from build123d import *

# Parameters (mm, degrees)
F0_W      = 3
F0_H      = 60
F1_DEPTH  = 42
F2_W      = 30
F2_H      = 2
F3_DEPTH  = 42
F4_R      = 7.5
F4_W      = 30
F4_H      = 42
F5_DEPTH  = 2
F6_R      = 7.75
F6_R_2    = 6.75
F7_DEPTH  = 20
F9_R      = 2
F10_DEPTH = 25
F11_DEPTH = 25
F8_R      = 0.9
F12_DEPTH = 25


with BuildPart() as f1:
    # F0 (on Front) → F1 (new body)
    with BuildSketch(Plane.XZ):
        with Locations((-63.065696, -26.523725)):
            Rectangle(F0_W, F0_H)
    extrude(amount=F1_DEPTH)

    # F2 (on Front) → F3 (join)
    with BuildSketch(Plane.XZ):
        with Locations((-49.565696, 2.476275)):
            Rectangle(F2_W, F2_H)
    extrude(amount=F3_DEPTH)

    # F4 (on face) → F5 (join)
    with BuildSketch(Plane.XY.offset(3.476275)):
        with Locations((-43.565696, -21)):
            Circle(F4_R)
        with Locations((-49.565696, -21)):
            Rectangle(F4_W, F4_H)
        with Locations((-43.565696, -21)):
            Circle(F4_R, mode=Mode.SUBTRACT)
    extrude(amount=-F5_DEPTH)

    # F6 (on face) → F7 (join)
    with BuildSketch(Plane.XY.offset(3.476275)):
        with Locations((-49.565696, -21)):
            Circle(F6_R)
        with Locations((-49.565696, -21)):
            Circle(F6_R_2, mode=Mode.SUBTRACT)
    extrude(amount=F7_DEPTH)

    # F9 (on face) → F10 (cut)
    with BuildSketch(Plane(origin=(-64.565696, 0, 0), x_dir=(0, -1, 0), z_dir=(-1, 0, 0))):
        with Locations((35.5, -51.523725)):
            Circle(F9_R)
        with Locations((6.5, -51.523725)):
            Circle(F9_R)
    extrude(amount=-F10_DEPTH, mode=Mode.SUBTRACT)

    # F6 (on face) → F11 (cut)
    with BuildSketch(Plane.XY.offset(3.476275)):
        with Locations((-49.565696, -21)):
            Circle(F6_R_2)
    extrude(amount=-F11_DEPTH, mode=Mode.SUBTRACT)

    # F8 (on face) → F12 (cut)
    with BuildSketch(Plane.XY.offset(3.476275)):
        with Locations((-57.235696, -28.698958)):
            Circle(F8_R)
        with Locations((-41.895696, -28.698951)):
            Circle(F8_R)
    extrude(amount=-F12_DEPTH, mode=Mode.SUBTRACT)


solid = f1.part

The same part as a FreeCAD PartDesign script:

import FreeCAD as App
import Part
import Sketcher

V = App.Vector
Q = App.Units.Quantity


def add_polygon(sketch, points):
    """Adds a closed chain of lines whose ends are joined by coincident constraints."""
    first, n = sketch.GeometryCount, len(points)
    for a, b in zip(points, points[1:] + points[:1]):
        sketch.addGeometry(Part.LineSegment(App.Vector(*a, 0), App.Vector(*b, 0)), False)
    for i in range(n):
        sketch.addConstraint(Sketcher.Constraint("Coincident", first + i, 2, first + (i + 1) % n, 1))

doc = App.newDocument("Part")
body = doc.addObject("PartDesign::Body", "Body")

sketch1 = body.newObject("Sketcher::SketchObject", "Sketch")
sketch1.AttachmentSupport = (doc.getObject("XZ_Plane"), [""])
sketch1.MapMode = "FlatFace"
add_polygon(sketch1, [(-64.6, 3.5), (-64.6, -56.5), (-61.6, -56.5), (-61.6, 3.5)])
sketch1.addConstraint(Sketcher.Constraint("Vertical", 0))
sketch1.addConstraint(Sketcher.Constraint("Horizontal", 1))
sketch1.addConstraint(Sketcher.Constraint("Vertical", 2))
sketch1.addConstraint(Sketcher.Constraint("Horizontal", 3))
sketch1.addConstraint(Sketcher.Constraint("DistanceX", 1, 1, 1, 2, Q("3 mm")))
sketch1.addConstraint(Sketcher.Constraint("DistanceY", 0, 2, 0, 1, Q("60 mm")))
sketch1.addConstraint(Sketcher.Constraint("DistanceX", 0, 2, -1, 1, Q("64.565696 mm")))
sketch1.addConstraint(Sketcher.Constraint("DistanceY", 0, 2, -1, 1, Q("56.523725 mm")))
pad1 = body.newObject("PartDesign::Pad", "Pad")
pad1.Profile = sketch1
pad1.Length = 42

sketch2 = body.newObject("Sketcher::SketchObject", "Sketch001")
sketch2.AttachmentSupport = (doc.getObject("XZ_Plane"), [""])
sketch2.MapMode = "FlatFace"
add_polygon(sketch2, [(-64.6, 3.5), (-64.6, 1.5), (-34.6, 1.5), (-34.6, 3.5)])
sketch2.addConstraint(Sketcher.Constraint("Vertical", 0))
sketch2.addConstraint(Sketcher.Constraint("Horizontal", 1))
sketch2.addConstraint(Sketcher.Constraint("Vertical", 2))
sketch2.addConstraint(Sketcher.Constraint("Horizontal", 3))
sketch2.addConstraint(Sketcher.Constraint("DistanceX", 1, 1, 1, 2, Q("30 mm")))
sketch2.addConstraint(Sketcher.Constraint("DistanceY", 0, 2, 0, 1, Q("2 mm")))
sketch2.addConstraint(Sketcher.Constraint("DistanceX", 0, 2, -1, 1, Q("64.565696 mm")))
sketch2.addConstraint(Sketcher.Constraint("DistanceY", -1, 1, 0, 2, Q("1.476275 mm")))
pad2 = body.newObject("PartDesign::Pad", "Pad001")
pad2.Profile = sketch2
pad2.Length = 42

sketch3 = body.newObject("Sketcher::SketchObject", "Sketch002")
sketch3.AttachmentSupport = (doc.getObject("XY_Plane"), [""])
sketch3.MapMode = "FlatFace"
sketch3.AttachmentOffset = App.Placement(V(0, 0, 3.476275), App.Rotation())
add_polygon(sketch3, [(-65, 0), (-65, -42), (-35, -42), (-35, 0)])
sketch3.addGeometry(Part.Circle(V(-44, -21, 0), V(0, 0, 1), 8), False)
sketch3.addConstraint(Sketcher.Constraint("Vertical", 0))
sketch3.addConstraint(Sketcher.Constraint("Horizontal", 1))
sketch3.addConstraint(Sketcher.Constraint("Vertical", 2))
sketch3.addConstraint(Sketcher.Constraint("Horizontal", 3))
sketch3.addConstraint(Sketcher.Constraint("PointOnObject", 2, 2, -1))
sketch3.addConstraint(Sketcher.Constraint("Diameter", 4, Q("15 mm")))
sketch3.addConstraint(Sketcher.Constraint("DistanceX", 1, 1, 1, 2, Q("30 mm")))
sketch3.addConstraint(Sketcher.Constraint("DistanceY", 0, 2, 0, 1, Q("42 mm")))
sketch3.addConstraint(Sketcher.Constraint("DistanceY", 4, 3, -1, 1, Q("21 mm")))
sketch3.addConstraint(Sketcher.Constraint("DistanceX", 0, 2, 4, 3, Q("21 mm")))
sketch3.addConstraint(Sketcher.Constraint("DistanceX", 4, 3, -1, 1, Q("43.565696 mm")))
pad3 = body.newObject("PartDesign::Pad", "Pad002")
pad3.Profile = sketch3
pad3.Length = 2
pad3.Reversed = True

sketch4 = body.newObject("Sketcher::SketchObject", "Sketch003")
sketch4.AttachmentSupport = (doc.getObject("XY_Plane"), [""])
sketch4.MapMode = "FlatFace"
sketch4.AttachmentOffset = App.Placement(V(0, 0, 3.476275), App.Rotation())
sketch4.addGeometry(Part.Circle(V(-50, -21, 0), V(0, 0, 1), 8), False)
sketch4.addGeometry(Part.Circle(V(-50, -21, 0), V(0, 0, 1), 7), False)
sketch4.addConstraint(Sketcher.Constraint("Coincident", 1, 3, 0, 3))
sketch4.addConstraint(Sketcher.Constraint("Diameter", 0, Q("15.5 mm")))
sketch4.addConstraint(Sketcher.Constraint("Diameter", 1, Q("13.5 mm")))
sketch4.addConstraint(Sketcher.Constraint("DistanceY", 0, 3, -1, 1, Q("21 mm")))
sketch4.addConstraint(Sketcher.Constraint("DistanceX", 0, 3, -1, 1, Q("49.565696 mm")))
pad4 = body.newObject("PartDesign::Pad", "Pad003")
pad4.Profile = sketch4
pad4.Length = 20

sketch5 = body.newObject("Sketcher::SketchObject", "Sketch004")
sketch5.AttachmentSupport = (doc.getObject("YZ_Plane"), [""])
sketch5.MapMode = "FlatFace"
sketch5.AttachmentOffset = App.Placement(V(0, 0, -64.565696), App.Rotation())
sketch5.addGeometry(Part.Circle(V(-35.5, -51.5, 0), V(0, 0, 1), 2), False)
sketch5.addGeometry(Part.Circle(V(-6.5, -51.5, 0), V(0, 0, 1), 2), False)
sketch5.addConstraint(Sketcher.Constraint("Equal", 0, 1))
sketch5.addConstraint(Sketcher.Constraint("Horizontal", 0, 3, 1, 3))
sketch5.addConstraint(Sketcher.Constraint("Diameter", 0, Q("4 mm")))
sketch5.addConstraint(Sketcher.Constraint("DistanceX", 0, 3, 1, 3, Q("29 mm")))
sketch5.addConstraint(Sketcher.Constraint("DistanceX", 0, 3, -1, 1, Q("35.5 mm")))
sketch5.addConstraint(Sketcher.Constraint("DistanceY", 0, 3, -1, 1, Q("51.523725 mm")))
pocket1 = body.newObject("PartDesign::Pocket", "Pocket")
pocket1.Profile = sketch5
pocket1.Length = 25
pocket1.Reversed = True

sketch6 = body.newObject("Sketcher::SketchObject", "Sketch005")
sketch6.AttachmentSupport = (doc.getObject("XY_Plane"), [""])
sketch6.MapMode = "FlatFace"
sketch6.AttachmentOffset = App.Placement(V(0, 0, 3.476275), App.Rotation())
sketch6.addGeometry(Part.Circle(V(-50, -21, 0), V(0, 0, 1), 7), False)
sketch6.addConstraint(Sketcher.Constraint("Diameter", 0, Q("13.5 mm")))
sketch6.addConstraint(Sketcher.Constraint("DistanceY", 0, 3, -1, 1, Q("21 mm")))
sketch6.addConstraint(Sketcher.Constraint("DistanceX", 0, 3, -1, 1, Q("49.565696 mm")))
pocket2 = body.newObject("PartDesign::Pocket", "Pocket001")
pocket2.Profile = sketch6
pocket2.Length = 25

sketch7 = body.newObject("Sketcher::SketchObject", "Sketch006")
sketch7.AttachmentSupport = (doc.getObject("XY_Plane"), [""])
sketch7.MapMode = "FlatFace"
sketch7.AttachmentOffset = App.Placement(V(0, 0, 3.476275), App.Rotation())
sketch7.addGeometry(Part.Circle(V(-57.2, -28.7, 0), V(0, 0, 1), 0.9), False)
sketch7.addGeometry(Part.Circle(V(-41.9, -28.7, 0), V(0, 0, 1), 0.9), False)
sketch7.addConstraint(Sketcher.Constraint("Equal", 0, 1))
sketch7.addConstraint(Sketcher.Constraint("Diameter", 0, Q("1.8 mm")))
sketch7.addConstraint(Sketcher.Constraint("DistanceX", 0, 3, 1, 3, Q("15.34 mm")))
sketch7.addConstraint(Sketcher.Constraint("DistanceY", 0, 3, -1, 1, Q("28.698958 mm")))
sketch7.addConstraint(Sketcher.Constraint("DistanceY", 1, 3, -1, 1, Q("28.698951 mm")))
sketch7.addConstraint(Sketcher.Constraint("DistanceX", 0, 3, -1, 1, Q("57.235696 mm")))
pocket3 = body.newObject("PartDesign::Pocket", "Pocket002")
pocket3.Profile = sketch7
pocket3.Length = 25

doc.recompute()
